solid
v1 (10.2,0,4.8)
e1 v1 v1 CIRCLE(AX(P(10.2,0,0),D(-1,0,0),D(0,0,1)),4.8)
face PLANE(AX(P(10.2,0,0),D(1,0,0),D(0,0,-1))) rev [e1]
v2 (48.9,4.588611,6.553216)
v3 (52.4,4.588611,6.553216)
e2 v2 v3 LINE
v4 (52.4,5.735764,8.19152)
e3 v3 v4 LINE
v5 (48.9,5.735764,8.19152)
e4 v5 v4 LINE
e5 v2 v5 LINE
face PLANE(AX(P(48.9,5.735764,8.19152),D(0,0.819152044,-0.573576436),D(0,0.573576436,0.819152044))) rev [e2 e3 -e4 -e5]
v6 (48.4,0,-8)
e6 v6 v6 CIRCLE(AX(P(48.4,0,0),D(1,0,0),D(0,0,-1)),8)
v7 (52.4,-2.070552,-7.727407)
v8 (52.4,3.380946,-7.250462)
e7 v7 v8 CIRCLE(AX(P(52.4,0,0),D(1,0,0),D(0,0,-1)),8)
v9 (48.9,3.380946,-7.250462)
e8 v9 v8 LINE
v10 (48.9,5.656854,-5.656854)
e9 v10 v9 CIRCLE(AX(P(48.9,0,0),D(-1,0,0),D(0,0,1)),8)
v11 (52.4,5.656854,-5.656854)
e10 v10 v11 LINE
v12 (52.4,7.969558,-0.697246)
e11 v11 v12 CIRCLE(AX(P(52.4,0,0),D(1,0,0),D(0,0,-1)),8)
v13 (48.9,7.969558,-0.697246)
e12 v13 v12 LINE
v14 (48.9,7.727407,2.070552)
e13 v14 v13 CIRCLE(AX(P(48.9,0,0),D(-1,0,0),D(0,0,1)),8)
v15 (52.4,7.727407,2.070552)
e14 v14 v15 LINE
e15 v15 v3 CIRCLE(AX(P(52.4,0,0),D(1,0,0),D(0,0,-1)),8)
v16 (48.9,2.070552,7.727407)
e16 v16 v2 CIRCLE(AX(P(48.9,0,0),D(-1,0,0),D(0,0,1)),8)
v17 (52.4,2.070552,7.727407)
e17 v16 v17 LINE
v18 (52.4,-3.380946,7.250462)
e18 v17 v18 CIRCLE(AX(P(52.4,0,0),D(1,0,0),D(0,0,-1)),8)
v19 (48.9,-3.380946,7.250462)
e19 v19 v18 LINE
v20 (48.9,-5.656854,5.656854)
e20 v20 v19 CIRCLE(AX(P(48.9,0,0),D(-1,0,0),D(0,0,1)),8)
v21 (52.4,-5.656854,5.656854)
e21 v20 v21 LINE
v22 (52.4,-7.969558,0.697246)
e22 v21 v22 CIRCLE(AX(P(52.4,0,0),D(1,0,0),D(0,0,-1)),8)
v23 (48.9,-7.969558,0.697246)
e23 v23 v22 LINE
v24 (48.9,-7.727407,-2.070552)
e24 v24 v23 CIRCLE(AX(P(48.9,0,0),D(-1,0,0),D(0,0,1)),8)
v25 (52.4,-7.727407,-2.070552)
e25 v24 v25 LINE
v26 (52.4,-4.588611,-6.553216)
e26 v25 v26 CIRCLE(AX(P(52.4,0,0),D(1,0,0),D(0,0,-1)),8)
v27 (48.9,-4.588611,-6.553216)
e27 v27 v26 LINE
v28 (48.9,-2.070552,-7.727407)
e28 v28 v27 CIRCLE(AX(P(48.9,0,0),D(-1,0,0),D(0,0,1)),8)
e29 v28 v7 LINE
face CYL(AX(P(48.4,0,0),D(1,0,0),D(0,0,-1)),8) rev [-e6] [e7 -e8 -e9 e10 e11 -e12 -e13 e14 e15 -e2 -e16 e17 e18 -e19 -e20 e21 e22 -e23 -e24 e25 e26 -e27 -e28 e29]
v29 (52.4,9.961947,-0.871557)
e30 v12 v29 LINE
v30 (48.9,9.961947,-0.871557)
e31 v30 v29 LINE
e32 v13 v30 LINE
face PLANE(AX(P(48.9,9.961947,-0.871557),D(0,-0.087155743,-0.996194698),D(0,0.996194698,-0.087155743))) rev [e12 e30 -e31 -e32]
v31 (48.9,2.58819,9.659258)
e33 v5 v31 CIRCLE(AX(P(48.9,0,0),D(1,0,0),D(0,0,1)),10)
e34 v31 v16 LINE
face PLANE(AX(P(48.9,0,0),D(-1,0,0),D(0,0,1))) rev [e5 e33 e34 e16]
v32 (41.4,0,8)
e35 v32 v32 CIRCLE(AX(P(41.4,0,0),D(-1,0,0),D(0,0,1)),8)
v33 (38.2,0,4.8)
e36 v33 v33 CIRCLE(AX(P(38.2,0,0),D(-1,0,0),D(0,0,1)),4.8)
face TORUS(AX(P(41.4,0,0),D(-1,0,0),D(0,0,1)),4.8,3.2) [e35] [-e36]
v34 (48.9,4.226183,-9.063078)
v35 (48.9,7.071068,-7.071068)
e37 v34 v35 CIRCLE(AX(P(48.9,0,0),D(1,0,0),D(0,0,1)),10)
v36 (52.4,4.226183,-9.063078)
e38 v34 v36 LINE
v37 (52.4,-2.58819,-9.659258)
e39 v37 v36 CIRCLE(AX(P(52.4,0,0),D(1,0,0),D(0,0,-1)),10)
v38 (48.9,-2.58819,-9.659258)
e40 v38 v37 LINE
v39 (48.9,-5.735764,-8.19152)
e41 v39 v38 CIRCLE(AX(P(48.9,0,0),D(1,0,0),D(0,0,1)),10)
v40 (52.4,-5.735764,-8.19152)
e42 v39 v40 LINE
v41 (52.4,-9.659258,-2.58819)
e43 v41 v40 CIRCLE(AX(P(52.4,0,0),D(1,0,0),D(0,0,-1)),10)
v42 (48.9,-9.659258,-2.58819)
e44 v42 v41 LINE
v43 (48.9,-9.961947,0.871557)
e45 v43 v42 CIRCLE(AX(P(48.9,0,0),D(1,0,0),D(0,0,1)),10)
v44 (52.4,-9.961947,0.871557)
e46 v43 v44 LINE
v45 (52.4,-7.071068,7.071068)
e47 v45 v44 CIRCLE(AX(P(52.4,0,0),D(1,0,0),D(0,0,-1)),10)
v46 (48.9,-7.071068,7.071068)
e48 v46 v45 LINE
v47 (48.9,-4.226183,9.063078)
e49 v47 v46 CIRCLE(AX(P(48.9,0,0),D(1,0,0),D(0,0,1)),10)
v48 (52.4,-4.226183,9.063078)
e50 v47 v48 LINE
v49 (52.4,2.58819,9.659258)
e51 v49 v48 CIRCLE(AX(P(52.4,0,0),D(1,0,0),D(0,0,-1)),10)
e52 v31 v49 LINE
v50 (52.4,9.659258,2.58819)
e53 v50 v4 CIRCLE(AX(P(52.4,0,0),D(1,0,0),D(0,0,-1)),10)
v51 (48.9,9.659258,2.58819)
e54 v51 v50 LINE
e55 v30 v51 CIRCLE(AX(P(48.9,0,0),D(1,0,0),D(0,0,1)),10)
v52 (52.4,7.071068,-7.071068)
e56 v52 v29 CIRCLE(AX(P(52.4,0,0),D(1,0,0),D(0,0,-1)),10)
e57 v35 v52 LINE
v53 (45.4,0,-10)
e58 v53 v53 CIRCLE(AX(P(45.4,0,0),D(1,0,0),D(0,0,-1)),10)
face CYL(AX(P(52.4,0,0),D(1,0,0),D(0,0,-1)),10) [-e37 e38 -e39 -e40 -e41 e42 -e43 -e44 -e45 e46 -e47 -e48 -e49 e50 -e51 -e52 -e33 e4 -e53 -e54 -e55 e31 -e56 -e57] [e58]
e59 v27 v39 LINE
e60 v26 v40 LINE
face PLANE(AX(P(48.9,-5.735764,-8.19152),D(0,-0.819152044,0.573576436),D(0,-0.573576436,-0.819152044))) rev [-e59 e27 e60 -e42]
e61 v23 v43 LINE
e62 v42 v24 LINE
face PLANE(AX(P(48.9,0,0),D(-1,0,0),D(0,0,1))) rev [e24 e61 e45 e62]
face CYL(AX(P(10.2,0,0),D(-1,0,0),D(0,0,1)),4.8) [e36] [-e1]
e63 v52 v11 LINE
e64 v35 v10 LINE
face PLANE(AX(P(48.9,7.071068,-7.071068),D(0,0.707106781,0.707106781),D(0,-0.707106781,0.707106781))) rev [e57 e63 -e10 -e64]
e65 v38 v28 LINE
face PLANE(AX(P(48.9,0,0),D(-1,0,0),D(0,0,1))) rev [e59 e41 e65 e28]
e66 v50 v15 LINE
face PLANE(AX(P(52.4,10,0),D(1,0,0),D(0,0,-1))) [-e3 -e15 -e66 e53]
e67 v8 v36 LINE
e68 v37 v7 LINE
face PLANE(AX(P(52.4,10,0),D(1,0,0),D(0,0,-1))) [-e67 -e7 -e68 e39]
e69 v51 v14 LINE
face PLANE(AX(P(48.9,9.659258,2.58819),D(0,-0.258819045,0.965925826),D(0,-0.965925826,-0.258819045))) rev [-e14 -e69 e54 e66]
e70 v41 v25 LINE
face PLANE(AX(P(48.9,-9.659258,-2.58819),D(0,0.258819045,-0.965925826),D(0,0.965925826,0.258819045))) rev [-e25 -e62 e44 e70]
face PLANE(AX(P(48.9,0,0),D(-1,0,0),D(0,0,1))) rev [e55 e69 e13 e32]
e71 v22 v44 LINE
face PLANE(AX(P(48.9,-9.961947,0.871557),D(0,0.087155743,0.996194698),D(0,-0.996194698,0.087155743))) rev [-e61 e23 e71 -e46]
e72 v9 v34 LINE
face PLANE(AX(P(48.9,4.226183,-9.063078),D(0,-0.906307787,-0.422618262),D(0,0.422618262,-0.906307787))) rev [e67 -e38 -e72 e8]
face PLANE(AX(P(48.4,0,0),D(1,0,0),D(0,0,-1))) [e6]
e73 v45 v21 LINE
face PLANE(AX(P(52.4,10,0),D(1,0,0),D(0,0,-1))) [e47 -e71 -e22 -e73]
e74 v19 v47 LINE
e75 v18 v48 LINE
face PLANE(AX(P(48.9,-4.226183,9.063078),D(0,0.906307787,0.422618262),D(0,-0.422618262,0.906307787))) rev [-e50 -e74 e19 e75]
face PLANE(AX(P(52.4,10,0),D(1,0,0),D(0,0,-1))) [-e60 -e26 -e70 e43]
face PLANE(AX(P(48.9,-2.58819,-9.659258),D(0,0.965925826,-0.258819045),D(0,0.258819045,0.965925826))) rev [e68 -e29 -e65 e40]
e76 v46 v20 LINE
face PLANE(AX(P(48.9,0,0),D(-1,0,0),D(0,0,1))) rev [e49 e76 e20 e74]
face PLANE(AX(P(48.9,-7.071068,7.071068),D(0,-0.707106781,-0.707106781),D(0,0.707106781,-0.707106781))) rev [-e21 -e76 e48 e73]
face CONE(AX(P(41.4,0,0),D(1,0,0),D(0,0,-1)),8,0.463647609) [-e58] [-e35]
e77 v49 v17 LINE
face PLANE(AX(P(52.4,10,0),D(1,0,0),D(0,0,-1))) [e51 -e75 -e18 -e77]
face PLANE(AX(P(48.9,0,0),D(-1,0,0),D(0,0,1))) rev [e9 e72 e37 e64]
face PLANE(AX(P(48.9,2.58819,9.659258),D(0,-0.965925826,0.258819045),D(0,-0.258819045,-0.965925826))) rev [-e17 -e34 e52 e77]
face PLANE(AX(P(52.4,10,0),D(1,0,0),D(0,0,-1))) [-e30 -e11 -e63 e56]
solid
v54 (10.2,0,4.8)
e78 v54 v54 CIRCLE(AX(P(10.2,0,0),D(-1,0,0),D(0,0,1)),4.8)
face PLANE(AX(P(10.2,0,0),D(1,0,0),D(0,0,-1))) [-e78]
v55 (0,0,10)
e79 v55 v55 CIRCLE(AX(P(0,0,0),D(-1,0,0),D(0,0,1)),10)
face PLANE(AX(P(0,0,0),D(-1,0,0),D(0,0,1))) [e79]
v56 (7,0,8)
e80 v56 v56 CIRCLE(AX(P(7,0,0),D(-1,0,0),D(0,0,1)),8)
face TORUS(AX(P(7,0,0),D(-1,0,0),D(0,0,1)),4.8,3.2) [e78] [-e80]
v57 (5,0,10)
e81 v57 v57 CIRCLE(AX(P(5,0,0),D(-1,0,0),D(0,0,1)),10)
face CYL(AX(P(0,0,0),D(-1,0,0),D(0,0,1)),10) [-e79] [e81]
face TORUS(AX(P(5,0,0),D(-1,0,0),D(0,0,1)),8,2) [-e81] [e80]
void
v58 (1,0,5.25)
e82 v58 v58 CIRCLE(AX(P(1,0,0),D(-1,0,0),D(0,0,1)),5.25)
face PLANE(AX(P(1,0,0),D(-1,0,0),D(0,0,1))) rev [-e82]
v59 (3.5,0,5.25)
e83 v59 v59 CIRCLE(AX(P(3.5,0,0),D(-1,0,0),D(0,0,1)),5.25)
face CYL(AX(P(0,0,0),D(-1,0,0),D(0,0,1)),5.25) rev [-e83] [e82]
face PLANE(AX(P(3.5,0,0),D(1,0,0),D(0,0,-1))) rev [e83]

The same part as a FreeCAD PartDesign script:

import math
import FreeCAD as App
import Part
import Sketcher
from FreeCAD import Vector
Q = App.Units.Quantity


def add_polygon(sketch, points):
    """Adds a closed chain of lines whose ends are joined by coincident constraints."""
    first, n = sketch.GeometryCount, len(points)
    for a, b in zip(points, points[1:] + points[:1]):
        sketch.addGeometry(Part.LineSegment(App.Vector(*a, 0), App.Vector(*b, 0)), False)
    for i in range(n):
        sketch.addConstraint(Sketcher.Constraint("Coincident", first + i, 2, first + (i + 1) % n, 1))

doc = App.newDocument("Part")
body = doc.addObject("PartDesign::Body", "Body")

# Sketch on XY plane
sketch1 = doc.addObject("Sketcher::SketchObject", "Sketch")
body.addObject(sketch1)
sketch1.AttachmentSupport = (doc.XY_Plane, [""])
sketch1.MapMode = "FlatFace"
sketch1.addGeometry([
    Part.LineSegment(Vector(38.2, 4.8, 0), Vector(10.2, 4.8, 0)),  # 0
    Part.LineSegment(Vector(10.2, 4.8, 0), Vector(10.2, 0, 0)),  # 1
    Part.LineSegment(Vector(10.2, 0, 0), Vector(45.4, 0, 0)),  # 2
    Part.LineSegment(Vector(45.4, 0, 0), Vector(45.4, 10, 0)),  # 3
    Part.LineSegment(Vector(45.4, 10, 0), Vector(41.4, 8, 0)),  # 4
    Part.ArcOfCircle(Part.Circle(Vector(41.4, 4.8, 0), Vector(0, 0, 1), 3.2), math.radians(90), math.radians(180)),  # 5
], False)
sketch1.addConstraint([
    Sketcher.Constraint("Coincident", 0, 2, 1, 1),
    Sketcher.Constraint("Coincident", 1, 2, 2, 1),
    Sketcher.Constraint("Coincident", 2, 2, 3, 1),
    Sketcher.Constraint("Coincident", 3, 2, 4, 1),
    Sketcher.Constraint("Coincident", 4, 2, 5, 1),
    Sketcher.Constraint("Coincident", 5, 2, 0, 1),
    Sketcher.Constraint("Horizontal", 0),
    Sketcher.Constraint("Vertical", 1),
    Sketcher.Constraint("Horizontal", 2),
    Sketcher.Constraint("Vertical", 3),
    Sketcher.Constraint("PointOnObject", 1, 2, -1),
    Sketcher.Constraint("Horizontal", 5, 3, 0, 2),
    Sketcher.Constraint("Vertical", 5, 3, 4, 2),
    Sketcher.Constraint("Radius", 5, Q("3.2 mm")),
    Sketcher.Constraint("DistanceX", 0, 2, 0, 1, Q("28 mm")),
    Sketcher.Constraint("DistanceY", 3, 1, 3, 2, Q("10 mm")),
    Sketcher.Constraint("DistanceX", 2, 1, 2, 2, Q("35.2 mm")),
    Sketcher.Constraint("DistanceY", 1, 2, 1, 1, Q("4.8 mm")),
    Sketcher.Constraint("DistanceX", -1, 1, 5, 3, Q("41.4 mm")),
])
revolution = doc.addObject("PartDesign::Revolution", "Revolution")
body.addObject(revolution)
revolution.Profile = sketch1
revolution.ReferenceAxis = (sketch1, ["H_Axis"])
revolution.Angle = 360

# Sketch on XY plane
sketch2 = doc.addObject("Sketcher::SketchObject", "Sketch001")
body.addObject(sketch2)
sketch2.AttachmentSupport = (doc.XY_Plane, [""])
sketch2.MapMode = "FlatFace"
add_polygon(sketch2, [(45, 10), (45, 0), (52, 0), (52, 10)])  # lines 0-3
sketch2.addConstraint([
    Sketcher.Constraint("Vertical", 0),
    Sketcher.Constraint("Horizontal", 1),
    Sketcher.Constraint("Vertical", 2),
    Sketcher.Constraint("Horizontal", 3),
    Sketcher.Constraint("PointOnObject", 0, 2, -1),
    Sketcher.Constraint("DistanceX", 1, 1, 1, 2, Q("7 mm")),
    Sketcher.Constraint("DistanceY", 0, 2, 0, 1, Q("10 mm")),
    Sketcher.Constraint("DistanceX", -1, 1, 0, 2, Q("45.4 mm")),
])
revolution2 = doc.addObject("PartDesign::Revolution", "Revolution001")
body.addObject(revolution2)
revolution2.Profile = sketch2
revolution2.ReferenceAxis = (sketch2, ["H_Axis"])
revolution2.Angle = 360

# Sketch on YZ plane
sketch3 = doc.addObject("Sketcher::SketchObject", "Sketch002")
body.addObject(sketch3)
sketch3.AttachmentSupport = (doc.YZ_Plane, [""])
sketch3.MapMode = "FlatFace"
sketch3.AttachmentOffset = App.Placement(Vector(0, 0, 52.4), App.Rotation())
sketch3.addGeometry(Part.Circle(Vector(0, 0, 0), Vector(0, 0, 1), 8), False)
sketch3.addConstraint([
    Sketcher.Constraint("Coincident", 0, 3, -1, 1),
    Sketcher.Constraint("Diameter", 0, Q("16 mm")),
])
pocket1 = doc.addObject("PartDesign::Pocket", "Pocket")
body.addObject(pocket1)
pocket1.Profile = sketch3
pocket1.Length = 4

# Sketch on YZ plane
sketch4 = doc.addObject("Sketcher::SketchObject", "Sketch003")
body.addObject(sketch4)
sketch4.AttachmentSupport = (doc.YZ_Plane, [""])
sketch4.MapMode = "FlatFace"
sketch4.AttachmentOffset = App.Placement(Vector(0, 0, 52.4), App.Rotation())
sketch4.addGeometry([
    Part.LineSegment(Vector(4.6, 6.6, 0), Vector(5.7, 8.2, 0)),  # 0
    Part.ArcOfCircle(Part.Circle(Vector(0, 0, 0), Vector(0, 0, 1), 10), math.radians(55), math.radians(75)),  # 1
    Part.LineSegment(Vector(2.6, 9.7, 0), Vector(2.1, 7.7, 0)),  # 2
    Part.ArcOfCircle(Part.Circle(Vector(0, 0, 0), Vector(0, 0, 1), 8), math.radians(55), math.radians(75)),  # 3
    Part.LineSegment(Vector(9.7, 2.6, 0), Vector(7.7, 2.1, 0)),  # 4
    Part.ArcOfCircle(Part.Circle(Vector(0, 0, 0), Vector(0, 0, 1), 8), math.radians(-5), math.radians(15)),  # 5
    Part.LineSegment(Vector(8, -0.7, 0), Vector(10, -0.9, 0)),  # 6
    Part.ArcOfCircle(Part.Circle(Vector(0, 0, 0), Vector(0, 0, 1), 10), math.radians(-5), math.radians(15)),  # 7
    Part.LineSegment(Vector(7.1, -7.1, 0), Vector(5.7, -5.7, 0)),  # 8
    Part.ArcOfCircle(Part.Circle(Vector(0, 0, 0), Vector(0, 0, 1), 8), math.radians(-65), math.radians(-45)),  # 9
    Part.LineSegment(Vector(3.4, -7.3, 0), Vector(4.2, -9.1, 0)),  # 10
    Part.ArcOfCircle(Part.Circle(Vector(0, 0, 0), Vector(0, 0, 1), 10), math.radians(-65), math.radians(-45)),  # 11
    Part.LineSegment(Vector(-2.6, -9.7, 0), Vector(-2.1, -7.7, 0)),  # 12
    Part.ArcOfCircle(Part.Circle(Vector(0, 0, 0), Vector(0, 0, 1), 8), math.radians(-125), math.radians(-105)),  # 13
    Part.LineSegment(Vector(-4.6, -6.6, 0), Vector(-5.7, -8.2, 0)),  # 14
    Part.ArcOfCircle(Part.Circle(Vector(0, 0, 0), Vector(0, 0, 1), 10), math.radians(-125), math.radians(-105)),  # 15
    Part.LineSegment(Vector(-9.7, -2.6, 0), Vector(-7.7, -2.1, 0)),  # 16
    Part.ArcOfCircle(Part.Circle(Vector(0, 0, 0), Vector(0, 0, 1), 8), math.radians(175), math.radians(195)),  # 17
    Part.LineSegment(Vector(-8, 0.7, 0), Vector(-10, 0.9, 0)),  # 18
    Part.ArcOfCircle(Part.Circle(Vector(0, 0, 0), Vector(0, 0, 1), 10), math.radians(175), math.radians(195)),  # 19
    Part.LineSegment(Vector(-7.1, 7.1, 0), Vector(-5.7, 5.7, 0)),  # 20
    Part.ArcOfCircle(Part.Circle(Vector(0, 0, 0), Vector(0, 0, 1), 8), math.radians(115), math.radians(135)),  # 21
    Part.LineSegment(Vector(-3.4, 7.3, 0), Vector(-4.2, 9.1, 0)),  # 22
    Part.ArcOfCircle(Part.Circle(Vector(0, 0, 0), Vector(0, 0, 1), 10), math.radians(115), math.radians(135)),  # 23
], False)
sketch4.addConstraint([
    Sketcher.Constraint("Coincident", 0, 2, 1, 1),
    Sketcher.Constraint("Coincident", 1, 2, 2, 1),
    Sketcher.Constraint("Coincident", 2, 2, 3, 2),
    Sketcher.Constraint("Coincident", 3, 1, 0, 1),
    Sketcher.Constraint("Coincident", 4, 2, 5, 2),
    Sketcher.Constraint("Coincident", 5, 1, 6, 1),
    Sketcher.Constraint("Coincident", 6, 2, 7, 1),
    Sketcher.Constraint("Coincident", 7, 2, 4, 1),
    Sketcher.Constraint("Coincident", 8, 2, 9, 2),
    Sketcher.Constraint("Coincident", 9, 1, 10, 1),
    Sketcher.Constraint("Coincident", 10, 2, 11, 1),
    Sketcher.Constraint("Coincident", 11, 2, 8, 1),
    Sketcher.Constraint("Coincident", 12, 2, 13, 2),
    Sketcher.Constraint("Coincident", 13, 1, 14, 1),
    Sketcher.Constraint("Coincident", 14, 2, 15, 1),
    Sketcher.Constraint("Coincident", 15, 2, 12, 1),
    Sketcher.Constraint("Coincident", 16, 2, 17, 2),
    Sketcher.Constraint("Coincident", 17, 1, 18, 1),
    Sketcher.Constraint("Coincident", 18, 2, 19, 1),
    Sketcher.Constraint("Coincident", 19, 2, 16, 1),
    Sketcher.Constraint("Coincident", 20, 2, 21, 2),
    Sketcher.Constraint("Coincident", 21, 1, 22, 1),
    Sketcher.Constraint("Coincident", 22, 2, 23, 1),
    Sketcher.Constraint("Coincident", 23, 2, 20, 1),
    Sketcher.Constraint("Coincident", 1, 3, -1, 1),
    Sketcher.Constraint("Coincident", 3, 3, -1, 1),
    Sketcher.Constraint("Coincident", 5, 3, -1, 1),
    Sketcher.Constraint("Coincident", 7, 3, -1, 1),
    Sketcher.Constraint("Coincident", 9, 3, -1, 1),
    Sketcher.Constraint("Coincident", 11, 3, -1, 1),
    Sketcher.Constraint("Coincident", 13, 3, -1, 1),
    Sketcher.Constraint("Coincident", 15, 3, -1, 1),
    Sketcher.Constraint("Coincident", 17, 3, -1, 1),
    Sketcher.Constraint("Coincident", 19, 3, -1, 1),
    Sketcher.Constraint("Coincident", 21, 3, -1, 1),
    Sketcher.Constraint("Coincident", 23, 3, -1, 1),
    Sketcher.Constraint("Equal", 3, 5),
    Sketcher.Constraint("Equal", 1, 7),
    Sketcher.Constraint("Equal", 5, 9),
    Sketcher.Constraint("Equal", 7, 11),
    Sketcher.Constraint("Equal", 9, 13),
    Sketcher.Constraint("Equal", 11, 15),
    Sketcher.Constraint("Equal", 13, 17),
    Sketcher.Constraint("Equal", 15, 19),
    Sketcher.Constraint("Equal", 17, 21),
    Sketcher.Constraint("Equal", 19, 23),
    Sketcher.Constraint("Parallel", 2, 12),
    Sketcher.Constraint("Parallel", 0, 14),
    Sketcher.Constraint("Parallel", 4, 16),
    Sketcher.Constraint("Parallel", 6, 18),
    Sketcher.Constraint("Parallel", 8, 20),
    Sketcher.Constraint("Parallel", 10, 22),
    Sketcher.Constraint("Radius", 1, Q("10 mm")),
    Sketcher.Constraint("Radius", 3, Q("8 mm")),
    Sketcher.Constraint("Angle", 0, Q("55 deg")),
    Sketcher.Constraint("Angle", 2, Q("-105 deg")),
    Sketcher.Constraint("Angle", 4, Q("-165 deg")),
    Sketcher.Constraint("Angle", 6, Q("-5 deg")),
    Sketcher.Constraint("Angle", 8, Q("135 deg")),
    Sketcher.Constraint("Angle", 10, Q("-65 deg")),
    Sketcher.Constraint("DistanceY", 5, 1, 4, 2, Q("2.767798 mm")),
    Sketcher.Constraint("DistanceX", 5, 1, 7, 2, Q("1.689701 mm")),
    Sketcher.Constraint("DistanceX", 12, 2, 9, 1, Q("5.451498 mm")),
    Sketcher.Constraint("DistanceY", 16, 2, 17, 1, Q("2.767798 mm")),
    Sketcher.Constraint("DistanceX", 19, 2, 17, 1, Q("1.689701 mm")),
    Sketcher.Constraint("DistanceX", 21, 1, 2, 2, Q("5.451498 mm")),
    Sketcher.Constraint("DistanceY", -1, 1, 0, 2, Q("8.19152 mm")),
    Sketcher.Constraint("DistanceX", -1, 1, 1, 2, Q("2.58819 mm")),
    Sketcher.Constraint("DistanceX", 13, 1, -1, 1, Q("4.588611 mm")),
    Sketcher.Constraint("DistanceX", 15, 2, -1, 1, Q("2.58819 mm")),
    Sketcher.Constraint("DistanceY", 8, 2, 5, 1, Q("4.959608 mm")),
    Sketcher.Constraint("DistanceY", 17, 1, 20, 2, Q("4.959608 mm")),
])
pocket2 = doc.addObject("PartDesign::Pocket", "Pocket001")
body.addObject(pocket2)
pocket2.Profile = sketch4
pocket2.Length = 3.5
body2 = doc.addObject("PartDesign::Body", "Body001")

# Sketch on XY plane
sketch5 = doc.addObject("Sketcher::SketchObject", "Sketch004")
body2.addObject(sketch5)
sketch5.AttachmentSupport = (doc.getObject("XY_Plane001"), [""])
sketch5.MapMode = "FlatFace"
sketch5.addGeometry([
    Part.LineSegment(Vector(0, 10, 0), Vector(0, 0, 0)),  # 0
    Part.LineSegment(Vector(0, 0, 0), Vector(1, 0, 0)),  # 1
    Part.LineSegment(Vector(1, 0, 0), Vector(1, 5.2, 0)),  # 2
    Part.LineSegment(Vector(1, 5.2, 0), Vector(3.5, 5.2, 0)),  # 3
    Part.LineSegment(Vector(3.5, 5.2, 0), Vector(3.5, 0, 0)),  # 4
    Part.LineSegment(Vector(3.5, 0, 0), Vector(10.2, 0, 0)),  # 5
    Part.LineSegment(Vector(10.2, 0, 0), Vector(10.2, 4.8, 0)),  # 6
    Part.ArcOfCircle(Part.Circle(Vector(7, 4.8, 0), Vector(0, 0, 1), 3.2), math.radians(0), math.radians(90)),  # 7
    Part.ArcOfCircle(Part.Circle(Vector(5, 8, 0), Vector(0, 0, 1), 2), math.radians(0), math.radians(90)),  # 8
    Part.LineSegment(Vector(5, 10, 0), Vector(0, 10, 0)),  # 9
], False)
sketch5.addConstraint([
    Sketcher.Constraint("Coincident", 0, 2, 1, 1),
    Sketcher.Constraint("Coincident", 1, 2, 2, 1),
    Sketcher.Constraint("Coincident", 2, 2, 3, 1),
    Sketcher.Constraint("Coincident", 3, 2, 4, 1),
    Sketcher.Constraint("Coincident", 4, 2, 5, 1),
    Sketcher.Constraint("Coincident", 5, 2, 6, 1),
    Sketcher.Constraint("Tangent", 6, 2, 7, 1),
    Sketcher.Constraint("Coincident", 7, 2, 8, 1),
    Sketcher.Constraint("Tangent", 8, 2, 9, 1),
    Sketcher.Constraint("Coincident", 9, 2, 0, 1),
    Sketcher.Constraint("Vertical", 0),
    Sketcher.Constraint("Horizontal", 1),
    Sketcher.Constraint("Vertical", 2),
    Sketcher.Constraint("Horizontal", 3),
    Sketcher.Constraint("Vertical", 4),
    Sketcher.Constraint("Horizontal", 5),
    Sketcher.Constraint("Vertical", 6),
    Sketcher.Constraint("Horizontal", 9),
    Sketcher.Constraint("Coincident", 0, 2, -1, 1),
    Sketcher.Constraint("PointOnObject", 4, 2, -1),
    Sketcher.Constraint("Horizontal", 8, 3, 7, 2),
    Sketcher.Constraint("Radius", 8, Q("2 mm")),
    Sketcher.Constraint("Radius", 7, Q("3.2 mm")),
    Sketcher.Constraint("DistanceX", 1, 1, 1, 2, Q("1 mm")),
    Sketcher.Constraint("DistanceX", 9, 2, 9, 1, Q("5 mm")),
    Sketcher.Constraint("DistanceY", 0, 2, 0, 1, Q("10 mm")),
    Sketcher.Constraint("DistanceX", 3, 1, 3, 2, Q("2.5 mm")),
    Sketcher.Constraint("DistanceX", 5, 1, 5, 2, Q("6.7 mm")),
    Sketcher.Constraint("DistanceY", 2, 1, 2, 2, Q("5.25 mm")),
])
revolution3 = doc.addObject("PartDesign::Revolution", "Revolution002")
body2.addObject(revolution3)
revolution3.Profile = sketch5
revolution3.ReferenceAxis = (sketch5, ["H_Axis"])
revolution3.Angle = 360

doc.recompute()
